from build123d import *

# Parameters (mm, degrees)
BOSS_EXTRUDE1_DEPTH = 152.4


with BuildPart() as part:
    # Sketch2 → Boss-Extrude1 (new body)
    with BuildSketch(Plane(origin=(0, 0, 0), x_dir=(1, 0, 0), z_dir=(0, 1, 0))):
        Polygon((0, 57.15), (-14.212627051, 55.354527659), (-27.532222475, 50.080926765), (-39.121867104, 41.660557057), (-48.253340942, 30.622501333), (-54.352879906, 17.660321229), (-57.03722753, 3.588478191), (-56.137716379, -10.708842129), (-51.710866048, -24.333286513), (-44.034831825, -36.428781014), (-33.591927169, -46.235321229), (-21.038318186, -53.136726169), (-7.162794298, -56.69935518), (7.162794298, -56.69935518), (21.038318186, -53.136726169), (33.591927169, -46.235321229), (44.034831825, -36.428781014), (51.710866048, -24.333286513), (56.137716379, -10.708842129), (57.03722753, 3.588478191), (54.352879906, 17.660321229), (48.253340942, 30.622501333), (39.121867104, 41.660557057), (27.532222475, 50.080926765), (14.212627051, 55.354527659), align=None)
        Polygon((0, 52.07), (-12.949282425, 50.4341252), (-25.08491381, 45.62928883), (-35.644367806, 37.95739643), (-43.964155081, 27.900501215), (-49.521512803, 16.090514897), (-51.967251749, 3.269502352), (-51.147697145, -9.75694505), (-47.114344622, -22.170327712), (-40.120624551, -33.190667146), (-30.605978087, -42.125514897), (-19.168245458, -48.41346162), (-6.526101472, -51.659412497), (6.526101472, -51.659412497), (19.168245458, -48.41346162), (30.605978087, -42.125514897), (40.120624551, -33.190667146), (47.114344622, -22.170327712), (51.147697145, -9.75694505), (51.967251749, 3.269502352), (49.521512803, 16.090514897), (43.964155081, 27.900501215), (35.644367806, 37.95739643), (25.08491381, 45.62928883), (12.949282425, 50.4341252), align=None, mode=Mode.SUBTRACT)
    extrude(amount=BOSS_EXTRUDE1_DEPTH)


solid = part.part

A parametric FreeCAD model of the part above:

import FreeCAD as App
import Part
import Sketcher

V = App.Vector
Q = App.Units.Quantity

doc = App.newDocument("Part")
body = doc.addObject("PartDesign::Body", "Body")

# Sketch on XZ plane
sketch1 = body.newObject("Sketcher::SketchObject", "Sketch")
sketch1.AttachmentSupport = (doc.getObject("XZ_Plane"), [""])
sketch1.MapMode = "FlatFace"
sketch1.addGeometry(Part.LineSegment(V(0, -57, 0), V(-14, -55, 0)), False)
sketch1.addGeometry(Part.LineSegment(V(-14, -55, 0), V(-28, -50, 0)), False)
sketch1.addGeometry(Part.LineSegment(V(-28, -50, 0), V(-39, -42, 0)), False)
sketch1.addGeometry(Part.LineSegment(V(-39, -42, 0), V(-48, -31, 0)), False)
sketch1.addGeometry(Part.LineSegment(V(-48, -31, 0), V(-54, -18, 0)), False)
sketch1.addGeometry(Part.LineSegment(V(-54, -18, 0), V(-57, -4, 0)), False)
sketch1.addGeometry(Part.LineSegment(V(-57, -4, 0), V(-56, 11, 0)), False)
sketch1.addGeometry(Part.LineSegment(V(-56, 11, 0), V(-52, 24, 0)), False)
sketch1.addGeometry(Part.LineSegment(V(-52, 24, 0), V(-44, 36, 0)), False)
sketch1.addGeometry(Part.LineSegment(V(-44, 36, 0), V(-34, 46, 0)), False)
sketch1.addGeometry(Part.LineSegment(V(-34, 46, 0), V(-21, 53, 0)), False)
sketch1.addGeometry(Part.LineSegment(V(-21, 53, 0), V(-7, 57, 0)), False)
sketch1.addGeometry(Part.LineSegment(V(-7, 57, 0), V(7, 57, 0)), False)
sketch1.addGeometry(Part.LineSegment(V(7, 57, 0), V(21, 53, 0)), False)
sketch1.addGeometry(Part.LineSegment(V(21, 53, 0), V(34, 46, 0)), False)
sketch1.addGeometry(Part.LineSegment(V(34, 46, 0), V(44, 36, 0)), False)
sketch1.addGeometry(Part.LineSegment(V(44, 36, 0), V(52, 24, 0)), False)
sketch1.addGeometry(Part.LineSegment(V(52, 24, 0), V(56, 11, 0)), False)
sketch1.addGeometry(Part.LineSegment(V(56, 11, 0), V(57, -4, 0)), False)
sketch1.addGeometry(Part.LineSegment(V(57, -4, 0), V(54, -18, 0)), False)
sketch1.addGeometry(Part.LineSegment(V(54, -18, 0), V(48, -31, 0)), False)
sketch1.addGeometry(Part.LineSegment(V(48, -31, 0), V(39, -42, 0)), False)
sketch1.addGeometry(Part.LineSegment(V(39, -42, 0), V(28, -50, 0)), False)
sketch1.addGeometry(Part.LineSegment(V(28, -50, 0), V(14, -55, 0)), False)
sketch1.addGeometry(Part.LineSegment(V(14, -55, 0), V(0, -57, 0)), False)
sketch1.addGeometry(Part.LineSegment(V(-13, -50, 0), V(0, -52, 0)), False)
sketch1.addGeometry(Part.LineSegment(V(0, -52, 0), V(13, -50, 0)), False)
sketch1.addGeometry(Part.LineSegment(V(13, -50, 0), V(25, -46, 0)), False)
sketch1.addGeometry(Part.LineSegment(V(25, -46, 0), V(36, -38, 0)), False)
sketch1.addGeometry(Part.LineSegment(V(36, -38, 0), V(44, -28, 0)), False)
sketch1.addGeometry(Part.LineSegment(V(44, -28, 0), V(50, -16, 0)), False)
sketch1.addGeometry(Part.LineSegment(V(50, -16, 0), V(52, -3, 0)), False)
sketch1.addGeometry(Part.LineSegment(V(52, -3, 0), V(51, 10, 0)), False)
sketch1.addGeometry(Part.LineSegment(V(51, 10, 0), V(47, 22, 0)), False)
sketch1.addGeometry(Part.LineSegment(V(47, 22, 0), V(40, 33, 0)), False)
sketch1.addGeometry(Part.LineSegment(V(40, 33, 0), V(31, 42, 0)), False)
sketch1.addGeometry(Part.LineSegment(V(31, 42, 0), V(19, 48, 0)), False)
sketch1.addGeometry(Part.LineSegment(V(19, 48, 0), V(7, 52, 0)), False)
sketch1.addGeometry(Part.LineSegment(V(7, 52, 0), V(-7, 52, 0)), False)
sketch1.addGeometry(Part.LineSegment(V(-7, 52, 0), V(-19, 48, 0)), False)
sketch1.addGeometry(Part.LineSegment(V(-19, 48, 0), V(-31, 42, 0)), False)
sketch1.addGeometry(Part.LineSegment(V(-31, 42, 0), V(-40, 33, 0)), False)
sketch1.addGeometry(Part.LineSegment(V(-40, 33, 0), V(-47, 22, 0)), False)
sketch1.addGeometry(Part.LineSegment(V(-47, 22, 0), V(-51, 10, 0)), False)
sketch1.addGeometry(Part.LineSegment(V(-51, 10, 0), V(-52, -3, 0)), False)
sketch1.addGeometry(Part.LineSegment(V(-52, -3, 0), V(-50, -16, 0)), False)
sketch1.addGeometry(Part.LineSegment(V(-50, -16, 0), V(-44, -28, 0)), False)
sketch1.addGeometry(Part.LineSegment(V(-44, -28, 0), V(-36, -38, 0)), False)
sketch1.addGeometry(Part.LineSegment(V(-36, -38, 0), V(-25, -46, 0)), False)
sketch1.addGeometry(Part.LineSegment(V(-25, -46, 0), V(-13, -50, 0)), False)
sketch1.addConstraint(Sketcher.Constraint("Coincident", 0, 2, 1, 1))
sketch1.addConstraint(Sketcher.Constraint("Coincident", 1, 2, 2, 1))
sketch1.addConstraint(Sketcher.Constraint("Coincident", 2, 2, 3, 1))
sketch1.addConstraint(Sketcher.Constraint("Coincident", 3, 2, 4, 1))
sketch1.addConstraint(Sketcher.Constraint("Coincident", 4, 2, 5, 1))
sketch1.addConstraint(Sketcher.Constraint("Coincident", 5, 2, 6, 1))
sketch1.addConstraint(Sketcher.Constraint("Coincident", 6, 2, 7, 1))
sketch1.addConstraint(Sketcher.Constraint("Coincident", 7, 2, 8, 1))
sketch1.addConstraint(Sketcher.Constraint("Coincident", 8, 2, 9, 1))
sketch1.addConstraint(Sketcher.Constraint("Coincident", 9, 2, 10, 1))
sketch1.addConstraint(Sketcher.Constraint("Coincident", 10, 2, 11, 1))
sketch1.addConstraint(Sketcher.Constraint("Coincident", 11, 2, 12, 1))
sketch1.addConstraint(Sketcher.Constraint("Coincident", 12, 2, 13, 1))
sketch1.addConstraint(Sketcher.Constraint("Coincident", 13, 2, 14, 1))
sketch1.addConstraint(Sketcher.Constraint("Coincident", 14, 2, 15, 1))
sketch1.addConstraint(Sketcher.Constraint("Coincident", 15, 2, 16, 1))
sketch1.addConstraint(Sketcher.Constraint("Coincident", 16, 2, 17, 1))
sketch1.addConstraint(Sketcher.Constraint("Coincident", 17, 2, 18, 1))
sketch1.addConstraint(Sketcher.Constraint("Coincident", 18, 2, 19, 1))
sketch1.addConstraint(Sketcher.Constraint("Coincident", 19, 2, 20, 1))
sketch1.addConstraint(Sketcher.Constraint("Coincident", 20, 2, 21, 1))
sketch1.addConstraint(Sketcher.Constraint("Coincident", 21, 2, 22, 1))
sketch1.addConstraint(Sketcher.Constraint("Coincident", 22, 2, 23, 1))
sketch1.addConstraint(Sketcher.Constraint("Coincident", 23, 2, 24, 1))
sketch1.addConstraint(Sketcher.Constraint("Coincident", 24, 2, 0, 1))
sketch1.addConstraint(Sketcher.Constraint("Coincident", 25, 2, 26, 1))
sketch1.addConstraint(Sketcher.Constraint("Coincident", 26, 2, 27, 1))
sketch1.addConstraint(Sketcher.Constraint("Coincident", 27, 2, 28, 1))
sketch1.addConstraint(Sketcher.Constraint("Coincident", 28, 2, 29, 1))
sketch1.addConstraint(Sketcher.Constraint("Coincident", 29, 2, 30, 1))
sketch1.addConstraint(Sketcher.Constraint("Coincident", 30, 2, 31, 1))
sketch1.addConstraint(Sketcher.Constraint("Coincident", 31, 2, 32, 1))
sketch1.addConstraint(Sketcher.Constraint("Coincident", 32, 2, 33, 1))
sketch1.addConstraint(Sketcher.Constraint("Coincident", 33, 2, 34, 1))
sketch1.addConstraint(Sketcher.Constraint("Coincident", 34, 2, 35, 1))
sketch1.addConstraint(Sketcher.Constraint("Coincident", 35, 2, 36, 1))
sketch1.addConstraint(Sketcher.Constraint("Coincident", 36, 2, 37, 1))
sketch1.addConstraint(Sketcher.Constraint("Coincident", 37, 2, 38, 1))
sketch1.addConstraint(Sketcher.Constraint("Coincident", 38, 2, 39, 1))
sketch1.addConstraint(Sketcher.Constraint("Coincident", 39, 2, 40, 1))
sketch1.addConstraint(Sketcher.Constraint("Coincident", 40, 2, 41, 1))
sketch1.addConstraint(Sketcher.Constraint("Coincident", 41, 2, 42, 1))
sketch1.addConstraint(Sketcher.Constraint("Coincident", 42, 2, 43, 1))
sketch1.addConstraint(Sketcher.Constraint("Coincident", 43, 2, 44, 1))
sketch1.addConstraint(Sketcher.Constraint("Coincident", 44, 2, 45, 1))
sketch1.addConstraint(Sketcher.Constraint("Coincident", 45, 2, 46, 1))
sketch1.addConstraint(Sketcher.Constraint("Coincident", 46, 2, 47, 1))
sketch1.addConstraint(Sketcher.Constraint("Coincident", 47, 2, 48, 1))
sketch1.addConstraint(Sketcher.Constraint("Coincident", 48, 2, 49, 1))
sketch1.addConstraint(Sketcher.Constraint("Coincident", 49, 2, 25, 1))
sketch1.addConstraint(Sketcher.Constraint("Horizontal", 12))
sketch1.addConstraint(Sketcher.Constraint("Horizontal", 38))
sketch1.addConstraint(Sketcher.Constraint("Symmetric", 10, 2, 13, 2, -2))
sketch1.addConstraint(Sketcher.Constraint("Symmetric", 9, 2, 14, 2, -2))
sketch1.addConstraint(Sketcher.Constraint("Symmetric", 8, 2, 15, 2, -2))
sketch1.addConstraint(Sketcher.Constraint("Symmetric", 7, 2, 16, 2, -2))
sketch1.addConstraint(Sketcher.Constraint("Symmetric", 6, 2, 17, 2, -2))
sketch1.addConstraint(Sketcher.Constraint("Symmetric", 5, 2, 18, 2, -2))
sketch1.addConstraint(Sketcher.Constraint("Symmetric", 4, 2, 19, 2, -2))
sketch1.addConstraint(Sketcher.Constraint("Symmetric", 3, 2, 20, 2, -2))
sketch1.addConstraint(Sketcher.Constraint("Symmetric", 2, 2, 21, 2, -2))
sketch1.addConstraint(Sketcher.Constraint("Symmetric", 1, 2, 22, 2, -2))
sketch1.addConstraint(Sketcher.Constraint("Symmetric", 0, 2, 23, 2, -2))
sketch1.addConstraint(Sketcher.Constraint("Symmetric", 36, 2, 39, 2, -2))
sketch1.addConstraint(Sketcher.Constraint("Symmetric", 35, 2, 40, 2, -2))
sketch1.addConstraint(Sketcher.Constraint("Symmetric", 34, 2, 41, 2, -2))
sketch1.addConstraint(Sketcher.Constraint("Symmetric", 33, 2, 42, 2, -2))
sketch1.addConstraint(Sketcher.Constraint("Symmetric", 32, 2, 43, 2, -2))
sketch1.addConstraint(Sketcher.Constraint("Symmetric", 31, 2, 44, 2, -2))
sketch1.addConstraint(Sketcher.Constraint("Symmetric", 30, 2, 45, 2, -2))
sketch1.addConstraint(Sketcher.Constraint("Symmetric", 29, 2, 46, 2, -2))
sketch1.addConstraint(Sketcher.Constraint("Symmetric", 28, 2, 47, 2, -2))
sketch1.addConstraint(Sketcher.Constraint("Symmetric", 27, 2, 48, 2, -2))
sketch1.addConstraint(Sketcher.Constraint("Symmetric", 26, 2, 49, 2, -2))
sketch1.addConstraint(Sketcher.Constraint("PointOnObject", 24, 2, -2))
sketch1.addConstraint(Sketcher.Constraint("PointOnObject", 25, 2, -2))
sketch1.addConstraint(Sketcher.Constraint("Parallel", 0, 25))
sketch1.addConstraint(Sketcher.Constraint("Parallel", 23, 27))
sketch1.addConstraint(Sketcher.Constraint("Parallel", 22, 28))
sketch1.addConstraint(Sketcher.Constraint("Parallel", 21, 29))
sketch1.addConstraint(Sketcher.Constraint("Parallel", 20, 30))
sketch1.addConstraint(Sketcher.Constraint("Parallel", 19, 31))
sketch1.addConstraint(Sketcher.Constraint("Parallel", 18, 32))
sketch1.addConstraint(Sketcher.Constraint("Parallel", 17, 33))
sketch1.addConstraint(Sketcher.Constraint("Parallel", 16, 34))
sketch1.addConstraint(Sketcher.Constraint("Parallel", 15, 35))
sketch1.addConstraint(Sketcher.Constraint("Parallel", 14, 36))
sketch1.addConstraint(Sketcher.Constraint("Parallel", 13, 37))
sketch1.addConstraint(Sketcher.Constraint("Parallel", 11, 39))
sketch1.addConstraint(Sketcher.Constraint("Equal", 0, 1))
sketch1.addConstraint(Sketcher.Constraint("Equal", 1, 2))
sketch1.addConstraint(Sketcher.Constraint("Equal", 2, 3))
sketch1.addConstraint(Sketcher.Constraint("Equal", 3, 4))
sketch1.addConstraint(Sketcher.Constraint("Equal", 4, 5))
sketch1.addConstraint(Sketcher.Constraint("Equal", 5, 6))
sketch1.addConstraint(Sketcher.Constraint("Equal", 6, 7))
sketch1.addConstraint(Sketcher.Constraint("Equal", 7, 8))
sketch1.addConstraint(Sketcher.Constraint("Equal", 8, 9))
sketch1.addConstraint(Sketcher.Constraint("Equal", 9, 10))
sketch1.addConstraint(Sketcher.Constraint("Equal", 10, 11))
sketch1.addConstraint(Sketcher.Constraint("Equal", 11, 13))
sketch1.addConstraint(Sketcher.Constraint("Equal", 26, 27))
sketch1.addConstraint(Sketcher.Constraint("Equal", 27, 28))
sketch1.addConstraint(Sketcher.Constraint("Equal", 28, 29))
sketch1.addConstraint(Sketcher.Constraint("Equal", 29, 30))
sketch1.addConstraint(Sketcher.Constraint("Equal", 30, 31))
sketch1.addConstraint(Sketcher.Constraint("Equal", 31, 32))
sketch1.addConstraint(Sketcher.Constraint("Equal", 32, 33))
sketch1.addConstraint(Sketcher.Constraint("Equal", 33, 34))
sketch1.addConstraint(Sketcher.Constraint("Equal", 34, 35))
sketch1.addConstraint(Sketcher.Constraint("Equal", 35, 36))
sketch1.addConstraint(Sketcher.Constraint("Equal", 36, 37))
sketch1.addConstraint(Sketcher.Constraint("Angle", 2, Q("144 deg")))
sketch1.addConstraint(Sketcher.Constraint("Angle", 7, Q("72 deg")))
sketch1.addConstraint(Sketcher.Constraint("Angle", 0, Q("172.8 deg")))
sketch1.addConstraint(Sketcher.Constraint("Angle", 1, Q("158.4 deg")))
sketch1.addConstraint(Sketcher.Constraint("Angle", 3, Q("129.6 deg")))
sketch1.addConstraint(Sketcher.Constraint("Angle", 4, Q("115.2 deg")))
sketch1.addConstraint(Sketcher.Constraint("Angle", 5, Q("100.8 deg")))
sketch1.addConstraint(Sketcher.Constraint("Angle", 6, Q("86.4 deg")))
sketch1.addConstraint(Sketcher.Constraint("Angle", 8, Q("57.6 deg")))
sketch1.addConstraint(Sketcher.Constraint("Angle", 9, Q("43.2 deg")))
sketch1.addConstraint(Sketcher.Constraint("Angle", 10, Q("28.8 deg")))
sketch1.addConstraint(Sketcher.Constraint("Angle", 11, Q("14.4 deg")))
sketch1.addConstraint(Sketcher.Constraint("DistanceY", 24, 2, 25, 2, Q("0.2 in")))
sketch1.addConstraint(Sketcher.Constraint("DistanceY", 24, 2, -1, 1, Q("2.25 in")))
sketch1.addConstraint(Sketcher.Constraint("DistanceX", 12, 1, 12, 2, 14.325589))
sketch1.addConstraint(Sketcher.Constraint("DistanceY", 29, 2, -1, 1, 27.900501))
pad1 = body.newObject("PartDesign::Pad", "Pad")
pad1.Profile = sketch1
pad1.Length = Q("6 in")
pad1.Reversed = True

doc.recompute()
